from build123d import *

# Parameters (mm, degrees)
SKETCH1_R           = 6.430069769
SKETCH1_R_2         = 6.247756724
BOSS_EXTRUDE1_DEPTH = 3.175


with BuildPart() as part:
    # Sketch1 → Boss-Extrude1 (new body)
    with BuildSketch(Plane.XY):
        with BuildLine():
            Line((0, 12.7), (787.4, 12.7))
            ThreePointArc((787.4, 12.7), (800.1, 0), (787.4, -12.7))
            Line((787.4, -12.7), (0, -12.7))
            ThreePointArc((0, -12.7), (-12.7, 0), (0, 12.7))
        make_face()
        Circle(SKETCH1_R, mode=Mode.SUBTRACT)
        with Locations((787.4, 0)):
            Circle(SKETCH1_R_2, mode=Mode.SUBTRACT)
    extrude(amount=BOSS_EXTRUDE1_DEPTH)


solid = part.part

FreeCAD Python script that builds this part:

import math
import FreeCAD as App
import Part
import Sketcher
from FreeCAD import Vector
Q = App.Units.Quantity

doc = App.newDocument("Part")
params = doc.addObject("Spreadsheet::Sheet", "Params")
for row, (alias, value) in enumerate([
    ("sketch1_radius", "0.5 in"),
    ("sketch1_width", "31 in"),
    ("pad1_length", "0.125 in"),
], start=1):
    params.set(f"A{row}", alias)
    params.set(f"B{row}", "=" + value)
    params.setAlias(f"B{row}", alias)

body = doc.addObject("PartDesign::Body", "Body")

# Sketch on XY plane
sketch1 = doc.addObject("Sketcher::SketchObject", "Sketch")
body.addObject(sketch1)
sketch1.AttachmentSupport = (doc.XY_Plane, [""])
sketch1.MapMode = "FlatFace"
sketch1.addGeometry([
    Part.LineSegment(Vector(787, 13, 0), Vector(0, 13, 0)),  # 0
    Part.ArcOfCircle(Part.Circle(Vector(0, 0, 0), Vector(0, 0, 1), 13), math.radians(90), math.radians(270)),  # 1
    Part.LineSegment(Vector(0, -13, 0), Vector(787, -13, 0)),  # 2
    Part.ArcOfCircle(Part.Circle(Vector(787, 0, 0), Vector(0, 0, 1), 13), math.radians(-90), math.radians(90)),  # 3
    Part.Circle(Vector(787, 0, 0), Vector(0, 0, 1), 6),  # 4
    Part.Circle(Vector(0, 0, 0), Vector(0, 0, 1), 6),  # 5
], False)
sketch1.addConstraint([
    Sketcher.Constraint("Tangent", 0, 2, 1, 1),
    Sketcher.Constraint("Tangent", 1, 2, 2, 1),
    Sketcher.Constraint("Tangent", 2, 2, 3, 1),
    Sketcher.Constraint("Tangent", 3, 2, 0, 1),
    Sketcher.Constraint("Horizontal", 0),
    Sketcher.Constraint("Horizontal", 2),
    Sketcher.Constraint("Coincident", 1, 3, -1, 1),
    Sketcher.Constraint("Coincident", 5, 3, -1, 1),
    Sketcher.Constraint("Coincident", 4, 3, 3, 3),
    Sketcher.Constraint("Radius", 1, Q("0.5 in")),
    Sketcher.Constraint("DistanceX", 0, 2, 0, 1, Q("31 in")),
    Sketcher.Constraint("Diameter", 5, 12.86014),
    Sketcher.Constraint("Diameter", 4, 12.495513),
])
sketch1.setExpression("Constraints[9]", "Params.sketch1_radius")
sketch1.setExpression("Constraints[10]", "Params.sketch1_width")
pad1 = doc.addObject("PartDesign::Pad", "Pad")
body.addObject(pad1)
pad1.Profile = sketch1
pad1.setExpression("Length", "Params.pad1_length")

doc.recompute()
